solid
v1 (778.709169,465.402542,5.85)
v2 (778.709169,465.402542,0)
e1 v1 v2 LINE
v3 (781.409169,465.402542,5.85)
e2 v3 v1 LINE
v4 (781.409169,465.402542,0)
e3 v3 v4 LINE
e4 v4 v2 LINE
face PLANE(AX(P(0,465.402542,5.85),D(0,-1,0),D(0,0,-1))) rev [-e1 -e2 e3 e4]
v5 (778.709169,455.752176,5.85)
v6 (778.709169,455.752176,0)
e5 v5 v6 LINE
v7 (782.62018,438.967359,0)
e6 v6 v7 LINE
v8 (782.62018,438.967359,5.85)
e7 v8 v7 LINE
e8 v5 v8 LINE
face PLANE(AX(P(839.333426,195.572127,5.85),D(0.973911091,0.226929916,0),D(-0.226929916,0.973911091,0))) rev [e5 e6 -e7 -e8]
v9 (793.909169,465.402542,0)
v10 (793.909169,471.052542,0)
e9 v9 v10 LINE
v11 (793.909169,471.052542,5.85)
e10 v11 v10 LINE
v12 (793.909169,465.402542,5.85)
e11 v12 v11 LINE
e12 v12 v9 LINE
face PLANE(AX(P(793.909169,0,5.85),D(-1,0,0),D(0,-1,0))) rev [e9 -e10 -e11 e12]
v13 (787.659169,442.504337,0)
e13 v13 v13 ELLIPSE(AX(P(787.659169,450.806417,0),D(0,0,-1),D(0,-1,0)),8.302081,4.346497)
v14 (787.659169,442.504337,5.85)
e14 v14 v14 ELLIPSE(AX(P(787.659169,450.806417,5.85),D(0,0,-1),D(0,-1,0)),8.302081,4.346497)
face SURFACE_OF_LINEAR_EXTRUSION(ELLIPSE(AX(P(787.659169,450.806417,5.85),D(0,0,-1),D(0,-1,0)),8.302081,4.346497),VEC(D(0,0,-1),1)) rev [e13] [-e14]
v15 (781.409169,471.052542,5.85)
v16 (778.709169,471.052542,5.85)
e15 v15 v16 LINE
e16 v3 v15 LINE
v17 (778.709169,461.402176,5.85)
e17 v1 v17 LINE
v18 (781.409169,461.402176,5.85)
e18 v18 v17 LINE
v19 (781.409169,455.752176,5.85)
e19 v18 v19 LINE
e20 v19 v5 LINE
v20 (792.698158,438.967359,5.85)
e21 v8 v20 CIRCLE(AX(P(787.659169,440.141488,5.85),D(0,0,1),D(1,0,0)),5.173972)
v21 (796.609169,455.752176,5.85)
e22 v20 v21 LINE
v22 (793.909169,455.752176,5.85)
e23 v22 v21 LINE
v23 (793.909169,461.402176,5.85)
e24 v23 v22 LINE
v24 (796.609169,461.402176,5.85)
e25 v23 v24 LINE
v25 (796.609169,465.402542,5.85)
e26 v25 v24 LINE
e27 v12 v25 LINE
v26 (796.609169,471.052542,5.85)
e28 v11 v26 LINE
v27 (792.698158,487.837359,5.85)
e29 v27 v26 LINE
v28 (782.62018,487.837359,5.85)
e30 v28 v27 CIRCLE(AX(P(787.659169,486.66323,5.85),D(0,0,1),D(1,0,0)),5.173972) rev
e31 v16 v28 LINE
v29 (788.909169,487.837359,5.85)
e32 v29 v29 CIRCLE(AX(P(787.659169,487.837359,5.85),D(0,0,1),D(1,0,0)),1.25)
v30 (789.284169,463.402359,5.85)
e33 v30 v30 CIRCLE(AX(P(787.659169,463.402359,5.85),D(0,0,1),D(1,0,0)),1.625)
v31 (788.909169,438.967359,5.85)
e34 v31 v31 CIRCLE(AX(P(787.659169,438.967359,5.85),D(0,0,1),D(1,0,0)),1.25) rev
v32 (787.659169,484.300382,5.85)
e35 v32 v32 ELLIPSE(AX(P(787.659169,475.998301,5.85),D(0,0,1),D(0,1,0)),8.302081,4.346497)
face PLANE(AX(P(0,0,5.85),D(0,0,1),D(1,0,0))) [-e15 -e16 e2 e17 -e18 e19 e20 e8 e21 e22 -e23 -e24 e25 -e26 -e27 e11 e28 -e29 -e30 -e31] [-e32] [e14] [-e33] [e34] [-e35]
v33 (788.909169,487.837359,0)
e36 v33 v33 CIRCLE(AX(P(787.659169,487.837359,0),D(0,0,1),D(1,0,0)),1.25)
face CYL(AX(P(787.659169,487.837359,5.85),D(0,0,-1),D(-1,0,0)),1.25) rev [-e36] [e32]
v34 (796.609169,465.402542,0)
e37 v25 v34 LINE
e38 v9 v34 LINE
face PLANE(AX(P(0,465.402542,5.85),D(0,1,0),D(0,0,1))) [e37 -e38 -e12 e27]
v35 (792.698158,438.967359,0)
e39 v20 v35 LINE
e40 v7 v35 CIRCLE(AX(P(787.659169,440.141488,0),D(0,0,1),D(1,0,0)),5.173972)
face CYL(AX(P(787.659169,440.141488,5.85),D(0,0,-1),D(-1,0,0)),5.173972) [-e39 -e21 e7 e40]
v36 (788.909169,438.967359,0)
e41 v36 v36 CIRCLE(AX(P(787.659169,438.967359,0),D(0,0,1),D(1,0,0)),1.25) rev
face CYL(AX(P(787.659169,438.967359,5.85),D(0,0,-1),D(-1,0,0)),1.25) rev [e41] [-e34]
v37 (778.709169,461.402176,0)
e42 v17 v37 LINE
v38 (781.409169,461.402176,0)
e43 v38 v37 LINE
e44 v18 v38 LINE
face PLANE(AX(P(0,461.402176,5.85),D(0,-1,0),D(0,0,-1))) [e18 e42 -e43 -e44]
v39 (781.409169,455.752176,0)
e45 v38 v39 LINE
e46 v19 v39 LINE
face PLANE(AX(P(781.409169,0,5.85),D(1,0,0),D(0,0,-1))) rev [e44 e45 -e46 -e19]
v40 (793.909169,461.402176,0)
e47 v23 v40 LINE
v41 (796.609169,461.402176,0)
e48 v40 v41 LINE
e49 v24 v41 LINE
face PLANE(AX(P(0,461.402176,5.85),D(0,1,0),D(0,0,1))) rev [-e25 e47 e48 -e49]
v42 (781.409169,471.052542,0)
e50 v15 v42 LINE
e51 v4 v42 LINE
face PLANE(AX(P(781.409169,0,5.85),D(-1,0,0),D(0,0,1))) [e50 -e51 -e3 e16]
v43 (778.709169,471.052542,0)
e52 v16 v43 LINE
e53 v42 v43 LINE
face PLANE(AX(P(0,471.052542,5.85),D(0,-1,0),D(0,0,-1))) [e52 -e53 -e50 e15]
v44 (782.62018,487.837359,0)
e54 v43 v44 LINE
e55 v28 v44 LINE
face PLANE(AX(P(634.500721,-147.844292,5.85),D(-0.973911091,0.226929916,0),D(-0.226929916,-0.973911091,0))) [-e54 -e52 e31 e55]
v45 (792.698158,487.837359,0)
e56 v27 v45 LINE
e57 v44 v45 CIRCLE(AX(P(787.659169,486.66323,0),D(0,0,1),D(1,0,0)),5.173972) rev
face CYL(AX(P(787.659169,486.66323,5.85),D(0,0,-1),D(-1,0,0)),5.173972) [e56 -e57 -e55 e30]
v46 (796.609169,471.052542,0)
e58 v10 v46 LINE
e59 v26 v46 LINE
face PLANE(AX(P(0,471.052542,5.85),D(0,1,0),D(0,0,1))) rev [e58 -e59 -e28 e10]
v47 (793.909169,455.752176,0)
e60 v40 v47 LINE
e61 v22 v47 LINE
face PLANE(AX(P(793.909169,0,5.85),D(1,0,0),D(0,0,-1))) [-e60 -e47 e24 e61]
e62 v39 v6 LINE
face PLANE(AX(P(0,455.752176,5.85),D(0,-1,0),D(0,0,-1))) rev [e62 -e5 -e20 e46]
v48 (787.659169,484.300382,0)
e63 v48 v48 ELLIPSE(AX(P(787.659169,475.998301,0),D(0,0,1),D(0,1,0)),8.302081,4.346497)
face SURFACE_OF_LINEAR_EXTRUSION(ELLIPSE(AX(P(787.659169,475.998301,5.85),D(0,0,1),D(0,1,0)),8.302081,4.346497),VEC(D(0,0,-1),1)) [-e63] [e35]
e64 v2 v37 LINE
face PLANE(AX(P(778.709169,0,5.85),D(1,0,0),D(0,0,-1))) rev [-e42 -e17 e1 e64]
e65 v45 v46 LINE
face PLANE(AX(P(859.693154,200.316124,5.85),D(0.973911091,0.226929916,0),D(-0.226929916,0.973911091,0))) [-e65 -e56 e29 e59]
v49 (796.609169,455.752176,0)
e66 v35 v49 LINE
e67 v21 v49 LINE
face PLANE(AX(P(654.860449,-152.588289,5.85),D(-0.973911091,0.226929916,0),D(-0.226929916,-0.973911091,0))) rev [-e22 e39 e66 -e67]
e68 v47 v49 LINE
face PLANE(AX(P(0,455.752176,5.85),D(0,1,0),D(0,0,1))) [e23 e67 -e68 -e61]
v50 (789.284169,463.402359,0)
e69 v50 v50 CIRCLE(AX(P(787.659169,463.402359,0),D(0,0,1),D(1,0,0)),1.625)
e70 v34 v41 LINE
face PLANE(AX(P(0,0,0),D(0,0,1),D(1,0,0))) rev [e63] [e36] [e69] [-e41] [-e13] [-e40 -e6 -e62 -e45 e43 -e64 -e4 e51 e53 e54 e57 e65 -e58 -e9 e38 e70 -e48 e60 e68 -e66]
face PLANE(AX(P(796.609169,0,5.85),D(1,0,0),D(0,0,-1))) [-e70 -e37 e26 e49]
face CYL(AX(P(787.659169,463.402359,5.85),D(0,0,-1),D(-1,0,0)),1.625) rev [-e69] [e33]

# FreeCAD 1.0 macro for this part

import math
import FreeCAD as App
import Part
import Sketcher

V = App.Vector
Q = App.Units.Quantity

doc = App.newDocument("Part")
body = doc.addObject("PartDesign::Body", "Body")

# Sketch on XY plane
sketch1 = body.newObject("Sketcher::SketchObject", "Sketch")
sketch1.AttachmentSupport = (doc.getObject("XY_Plane"), [""])
sketch1.MapMode = "FlatFace"
sketch1.addGeometry([
    Part.LineSegment(V(781.409169, 465.402542, 0), V(778.709169, 465.402542, 0)),  # 0
    Part.LineSegment(V(778.709169, 465.402542, 0), V(778.709169, 461.402176, 0)),  # 1
    Part.LineSegment(V(778.709169, 461.402176, 0), V(781.409169, 461.402176, 0)),  # 2
    Part.LineSegment(V(781.409169, 461.402176, 0), V(781.409169, 455.752176, 0)),  # 3
    Part.LineSegment(V(781.409169, 455.752176, 0), V(778.709169, 455.752176, 0)),  # 4
    Part.LineSegment(V(778.709169, 455.752176, 0), V(782.62018, 438.967359, 0)),  # 5
    Part.ArcOfCircle(Part.Circle(V(787.659169, 440.141488, 0), V(0, 0, 1), 5.173972), math.radians(-166.88361), math.radians(-13.11639)),  # 6
    Part.LineSegment(V(792.698158, 438.967359, 0), V(796.609169, 455.752176, 0)),  # 7
    Part.LineSegment(V(796.609169, 455.752176, 0), V(793.909169, 455.752176, 0)),  # 8
    Part.LineSegment(V(793.909169, 455.752176, 0), V(793.909169, 461.402176, 0)),  # 9
    Part.LineSegment(V(793.909169, 461.402176, 0), V(796.609169, 461.402176, 0)),  # 10
    Part.LineSegment(V(796.609169, 461.402176, 0), V(796.609169, 465.402542, 0)),  # 11
    Part.LineSegment(V(796.609169, 465.402542, 0), V(793.909169, 465.402542, 0)),  # 12
    Part.LineSegment(V(793.909169, 465.402542, 0), V(793.909169, 471.052542, 0)),  # 13
    Part.LineSegment(V(793.909169, 471.052542, 0), V(796.609169, 471.052542, 0)),  # 14
    Part.LineSegment(V(796.609169, 471.052542, 0), V(792.698158, 487.837359, 0)),  # 15
    Part.ArcOfCircle(Part.Circle(V(787.659169, 486.66323, 0), V(0, 0, 1), 5.173972), math.radians(13.11639), math.radians(166.88361)),  # 16
    Part.LineSegment(V(782.62018, 487.837359, 0), V(778.709169, 471.052542, 0)),  # 17
    Part.LineSegment(V(778.709169, 471.052542, 0), V(781.409169, 471.052542, 0)),  # 18
    Part.LineSegment(V(781.409169, 471.052542, 0), V(781.409169, 465.402542, 0)),  # 19
    Part.Circle(V(787.659169, 438.967359, 0), V(0, 0, 1), 1.25),  # 20
    Part.Ellipse(V(787.659169, 442.504337, 0), V(792.005666, 450.806417, 0), V(787.659169, 450.806417, 0)),  # 21
    Part.Circle(V(787.659169, 463.402359, 0), V(0, 0, 1), 1.625),  # 22
    Part.Ellipse(V(787.659169, 467.69622, 0), V(792.005666, 475.998301, 0), V(787.659169, 475.998301, 0)),  # 23
    Part.Circle(V(787.659169, 487.837359, 0), V(0, 0, 1), 1.25),  # 24
], False)
sketch1.addConstraint([
    Sketcher.Constraint("Block", 21),
    Sketcher.Constraint("Block", 23),
    Sketcher.Constraint("Coincident", 0, 2, 1, 1),
    Sketcher.Constraint("Coincident", 1, 2, 2, 1),
    Sketcher.Constraint("Coincident", 2, 2, 3, 1),
    Sketcher.Constraint("Coincident", 3, 2, 4, 1),
    Sketcher.Constraint("Coincident", 4, 2, 5, 1),
    Sketcher.Constraint("Tangent", 5, 2, 6, 1),
    Sketcher.Constraint("Tangent", 6, 2, 7, 1),
    Sketcher.Constraint("Coincident", 7, 2, 8, 1),
    Sketcher.Constraint("Coincident", 8, 2, 9, 1),
    Sketcher.Constraint("Coincident", 9, 2, 10, 1),
    Sketcher.Constraint("Coincident", 10, 2, 11, 1),
    Sketcher.Constraint("Coincident", 11, 2, 12, 1),
    Sketcher.Constraint("Coincident", 12, 2, 13, 1),
    Sketcher.Constraint("Coincident", 13, 2, 14, 1),
    Sketcher.Constraint("Coincident", 14, 2, 15, 1),
    Sketcher.Constraint("Tangent", 15, 2, 16, 1),
    Sketcher.Constraint("Tangent", 16, 2, 17, 1),
    Sketcher.Constraint("Coincident", 17, 2, 18, 1),
    Sketcher.Constraint("Coincident", 18, 2, 19, 1),
    Sketcher.Constraint("Coincident", 19, 2, 0, 1),
    Sketcher.Constraint("Horizontal", 0),
    Sketcher.Constraint("Vertical", 1),
    Sketcher.Constraint("Horizontal", 2),
    Sketcher.Constraint("Vertical", 3),
    Sketcher.Constraint("Horizontal", 4),
    Sketcher.Constraint("Horizontal", 8),
    Sketcher.Constraint("Vertical", 9),
    Sketcher.Constraint("Horizontal", 10),
    Sketcher.Constraint("Vertical", 11),
    Sketcher.Constraint("Horizontal", 12),
    Sketcher.Constraint("Vertical", 13),
    Sketcher.Constraint("Horizontal", 14),
    Sketcher.Constraint("Horizontal", 18),
    Sketcher.Constraint("Vertical", 19),
    Sketcher.Constraint("Equal", 6, 16),
    Sketcher.Constraint("Equal", 20, 24),
    Sketcher.Constraint("Parallel", 5, 15),
    Sketcher.Constraint("Parallel", 7, 17),
    Sketcher.Constraint("Horizontal", 20, 3, 5, 2),
    Sketcher.Constraint("Horizontal", 5, 2, 6, 2),
    Sketcher.Constraint("Horizontal", 4, 2, 7, 2),
    Sketcher.Constraint("Horizontal", 2, 2, 9, 2),
    Sketcher.Constraint("Horizontal", 0, 2, 11, 2),
    Sketcher.Constraint("Horizontal", 24, 3, 15, 2),
    Sketcher.Constraint("Horizontal", 14, 2, 17, 2),
    Sketcher.Constraint("Vertical", 6, 3, 16, 3),
    Sketcher.Constraint("Vertical", 16, 3, 20, 3),
    Sketcher.Constraint("Vertical", 20, 3, 22, 3),
    Sketcher.Constraint("Vertical", 22, 3, 24, 3),
    Sketcher.Constraint("Vertical", 1, 2, 4, 2),
    Sketcher.Constraint("Vertical", 7, 2, 10, 2),
    Sketcher.Constraint("Vertical", 9, 2, 12, 2),
    Sketcher.Constraint("Vertical", 11, 2, 14, 2),
    Sketcher.Constraint("Vertical", 3, 2, 18, 2),
    Sketcher.Constraint("Equal", 4, 8),
    Sketcher.Constraint("Equal", 9, 13),
    Sketcher.Constraint("Diameter", 20, Q("2.5 mm")),
    Sketcher.Constraint("Diameter", 22, Q("3.25 mm")),
    Sketcher.Constraint("DistanceX", 0, 2, 0, 1, Q("2.7 mm")),
    Sketcher.Constraint("DistanceY", 3, 2, 3, 1, Q("5.65 mm")),
    Sketcher.Constraint("DistanceX", 3, 2, 7, 2, Q("15.2 mm")),
    Sketcher.Constraint("DistanceY", 20, 3, 24, 3, Q("48.87 mm")),
    Sketcher.Constraint("Radius", 6, Q("5.173972 mm")),
    Sketcher.Constraint("DistanceY", 20, 3, 22, 3, Q("24.435 mm")),
    Sketcher.Constraint("DistanceY", 1, 2, 1, 1, Q("4.000366 mm")),
    Sketcher.Constraint("DistanceX", -1, 1, 6, 3, Q("787.659169 mm")),
    Sketcher.Constraint("DistanceY", -1, 1, 6, 3, Q("440.141488 mm")),
])
pad1 = body.newObject("PartDesign::Pad", "Pad")
pad1.Profile = sketch1
pad1.Length = 5.85

doc.recompute()
